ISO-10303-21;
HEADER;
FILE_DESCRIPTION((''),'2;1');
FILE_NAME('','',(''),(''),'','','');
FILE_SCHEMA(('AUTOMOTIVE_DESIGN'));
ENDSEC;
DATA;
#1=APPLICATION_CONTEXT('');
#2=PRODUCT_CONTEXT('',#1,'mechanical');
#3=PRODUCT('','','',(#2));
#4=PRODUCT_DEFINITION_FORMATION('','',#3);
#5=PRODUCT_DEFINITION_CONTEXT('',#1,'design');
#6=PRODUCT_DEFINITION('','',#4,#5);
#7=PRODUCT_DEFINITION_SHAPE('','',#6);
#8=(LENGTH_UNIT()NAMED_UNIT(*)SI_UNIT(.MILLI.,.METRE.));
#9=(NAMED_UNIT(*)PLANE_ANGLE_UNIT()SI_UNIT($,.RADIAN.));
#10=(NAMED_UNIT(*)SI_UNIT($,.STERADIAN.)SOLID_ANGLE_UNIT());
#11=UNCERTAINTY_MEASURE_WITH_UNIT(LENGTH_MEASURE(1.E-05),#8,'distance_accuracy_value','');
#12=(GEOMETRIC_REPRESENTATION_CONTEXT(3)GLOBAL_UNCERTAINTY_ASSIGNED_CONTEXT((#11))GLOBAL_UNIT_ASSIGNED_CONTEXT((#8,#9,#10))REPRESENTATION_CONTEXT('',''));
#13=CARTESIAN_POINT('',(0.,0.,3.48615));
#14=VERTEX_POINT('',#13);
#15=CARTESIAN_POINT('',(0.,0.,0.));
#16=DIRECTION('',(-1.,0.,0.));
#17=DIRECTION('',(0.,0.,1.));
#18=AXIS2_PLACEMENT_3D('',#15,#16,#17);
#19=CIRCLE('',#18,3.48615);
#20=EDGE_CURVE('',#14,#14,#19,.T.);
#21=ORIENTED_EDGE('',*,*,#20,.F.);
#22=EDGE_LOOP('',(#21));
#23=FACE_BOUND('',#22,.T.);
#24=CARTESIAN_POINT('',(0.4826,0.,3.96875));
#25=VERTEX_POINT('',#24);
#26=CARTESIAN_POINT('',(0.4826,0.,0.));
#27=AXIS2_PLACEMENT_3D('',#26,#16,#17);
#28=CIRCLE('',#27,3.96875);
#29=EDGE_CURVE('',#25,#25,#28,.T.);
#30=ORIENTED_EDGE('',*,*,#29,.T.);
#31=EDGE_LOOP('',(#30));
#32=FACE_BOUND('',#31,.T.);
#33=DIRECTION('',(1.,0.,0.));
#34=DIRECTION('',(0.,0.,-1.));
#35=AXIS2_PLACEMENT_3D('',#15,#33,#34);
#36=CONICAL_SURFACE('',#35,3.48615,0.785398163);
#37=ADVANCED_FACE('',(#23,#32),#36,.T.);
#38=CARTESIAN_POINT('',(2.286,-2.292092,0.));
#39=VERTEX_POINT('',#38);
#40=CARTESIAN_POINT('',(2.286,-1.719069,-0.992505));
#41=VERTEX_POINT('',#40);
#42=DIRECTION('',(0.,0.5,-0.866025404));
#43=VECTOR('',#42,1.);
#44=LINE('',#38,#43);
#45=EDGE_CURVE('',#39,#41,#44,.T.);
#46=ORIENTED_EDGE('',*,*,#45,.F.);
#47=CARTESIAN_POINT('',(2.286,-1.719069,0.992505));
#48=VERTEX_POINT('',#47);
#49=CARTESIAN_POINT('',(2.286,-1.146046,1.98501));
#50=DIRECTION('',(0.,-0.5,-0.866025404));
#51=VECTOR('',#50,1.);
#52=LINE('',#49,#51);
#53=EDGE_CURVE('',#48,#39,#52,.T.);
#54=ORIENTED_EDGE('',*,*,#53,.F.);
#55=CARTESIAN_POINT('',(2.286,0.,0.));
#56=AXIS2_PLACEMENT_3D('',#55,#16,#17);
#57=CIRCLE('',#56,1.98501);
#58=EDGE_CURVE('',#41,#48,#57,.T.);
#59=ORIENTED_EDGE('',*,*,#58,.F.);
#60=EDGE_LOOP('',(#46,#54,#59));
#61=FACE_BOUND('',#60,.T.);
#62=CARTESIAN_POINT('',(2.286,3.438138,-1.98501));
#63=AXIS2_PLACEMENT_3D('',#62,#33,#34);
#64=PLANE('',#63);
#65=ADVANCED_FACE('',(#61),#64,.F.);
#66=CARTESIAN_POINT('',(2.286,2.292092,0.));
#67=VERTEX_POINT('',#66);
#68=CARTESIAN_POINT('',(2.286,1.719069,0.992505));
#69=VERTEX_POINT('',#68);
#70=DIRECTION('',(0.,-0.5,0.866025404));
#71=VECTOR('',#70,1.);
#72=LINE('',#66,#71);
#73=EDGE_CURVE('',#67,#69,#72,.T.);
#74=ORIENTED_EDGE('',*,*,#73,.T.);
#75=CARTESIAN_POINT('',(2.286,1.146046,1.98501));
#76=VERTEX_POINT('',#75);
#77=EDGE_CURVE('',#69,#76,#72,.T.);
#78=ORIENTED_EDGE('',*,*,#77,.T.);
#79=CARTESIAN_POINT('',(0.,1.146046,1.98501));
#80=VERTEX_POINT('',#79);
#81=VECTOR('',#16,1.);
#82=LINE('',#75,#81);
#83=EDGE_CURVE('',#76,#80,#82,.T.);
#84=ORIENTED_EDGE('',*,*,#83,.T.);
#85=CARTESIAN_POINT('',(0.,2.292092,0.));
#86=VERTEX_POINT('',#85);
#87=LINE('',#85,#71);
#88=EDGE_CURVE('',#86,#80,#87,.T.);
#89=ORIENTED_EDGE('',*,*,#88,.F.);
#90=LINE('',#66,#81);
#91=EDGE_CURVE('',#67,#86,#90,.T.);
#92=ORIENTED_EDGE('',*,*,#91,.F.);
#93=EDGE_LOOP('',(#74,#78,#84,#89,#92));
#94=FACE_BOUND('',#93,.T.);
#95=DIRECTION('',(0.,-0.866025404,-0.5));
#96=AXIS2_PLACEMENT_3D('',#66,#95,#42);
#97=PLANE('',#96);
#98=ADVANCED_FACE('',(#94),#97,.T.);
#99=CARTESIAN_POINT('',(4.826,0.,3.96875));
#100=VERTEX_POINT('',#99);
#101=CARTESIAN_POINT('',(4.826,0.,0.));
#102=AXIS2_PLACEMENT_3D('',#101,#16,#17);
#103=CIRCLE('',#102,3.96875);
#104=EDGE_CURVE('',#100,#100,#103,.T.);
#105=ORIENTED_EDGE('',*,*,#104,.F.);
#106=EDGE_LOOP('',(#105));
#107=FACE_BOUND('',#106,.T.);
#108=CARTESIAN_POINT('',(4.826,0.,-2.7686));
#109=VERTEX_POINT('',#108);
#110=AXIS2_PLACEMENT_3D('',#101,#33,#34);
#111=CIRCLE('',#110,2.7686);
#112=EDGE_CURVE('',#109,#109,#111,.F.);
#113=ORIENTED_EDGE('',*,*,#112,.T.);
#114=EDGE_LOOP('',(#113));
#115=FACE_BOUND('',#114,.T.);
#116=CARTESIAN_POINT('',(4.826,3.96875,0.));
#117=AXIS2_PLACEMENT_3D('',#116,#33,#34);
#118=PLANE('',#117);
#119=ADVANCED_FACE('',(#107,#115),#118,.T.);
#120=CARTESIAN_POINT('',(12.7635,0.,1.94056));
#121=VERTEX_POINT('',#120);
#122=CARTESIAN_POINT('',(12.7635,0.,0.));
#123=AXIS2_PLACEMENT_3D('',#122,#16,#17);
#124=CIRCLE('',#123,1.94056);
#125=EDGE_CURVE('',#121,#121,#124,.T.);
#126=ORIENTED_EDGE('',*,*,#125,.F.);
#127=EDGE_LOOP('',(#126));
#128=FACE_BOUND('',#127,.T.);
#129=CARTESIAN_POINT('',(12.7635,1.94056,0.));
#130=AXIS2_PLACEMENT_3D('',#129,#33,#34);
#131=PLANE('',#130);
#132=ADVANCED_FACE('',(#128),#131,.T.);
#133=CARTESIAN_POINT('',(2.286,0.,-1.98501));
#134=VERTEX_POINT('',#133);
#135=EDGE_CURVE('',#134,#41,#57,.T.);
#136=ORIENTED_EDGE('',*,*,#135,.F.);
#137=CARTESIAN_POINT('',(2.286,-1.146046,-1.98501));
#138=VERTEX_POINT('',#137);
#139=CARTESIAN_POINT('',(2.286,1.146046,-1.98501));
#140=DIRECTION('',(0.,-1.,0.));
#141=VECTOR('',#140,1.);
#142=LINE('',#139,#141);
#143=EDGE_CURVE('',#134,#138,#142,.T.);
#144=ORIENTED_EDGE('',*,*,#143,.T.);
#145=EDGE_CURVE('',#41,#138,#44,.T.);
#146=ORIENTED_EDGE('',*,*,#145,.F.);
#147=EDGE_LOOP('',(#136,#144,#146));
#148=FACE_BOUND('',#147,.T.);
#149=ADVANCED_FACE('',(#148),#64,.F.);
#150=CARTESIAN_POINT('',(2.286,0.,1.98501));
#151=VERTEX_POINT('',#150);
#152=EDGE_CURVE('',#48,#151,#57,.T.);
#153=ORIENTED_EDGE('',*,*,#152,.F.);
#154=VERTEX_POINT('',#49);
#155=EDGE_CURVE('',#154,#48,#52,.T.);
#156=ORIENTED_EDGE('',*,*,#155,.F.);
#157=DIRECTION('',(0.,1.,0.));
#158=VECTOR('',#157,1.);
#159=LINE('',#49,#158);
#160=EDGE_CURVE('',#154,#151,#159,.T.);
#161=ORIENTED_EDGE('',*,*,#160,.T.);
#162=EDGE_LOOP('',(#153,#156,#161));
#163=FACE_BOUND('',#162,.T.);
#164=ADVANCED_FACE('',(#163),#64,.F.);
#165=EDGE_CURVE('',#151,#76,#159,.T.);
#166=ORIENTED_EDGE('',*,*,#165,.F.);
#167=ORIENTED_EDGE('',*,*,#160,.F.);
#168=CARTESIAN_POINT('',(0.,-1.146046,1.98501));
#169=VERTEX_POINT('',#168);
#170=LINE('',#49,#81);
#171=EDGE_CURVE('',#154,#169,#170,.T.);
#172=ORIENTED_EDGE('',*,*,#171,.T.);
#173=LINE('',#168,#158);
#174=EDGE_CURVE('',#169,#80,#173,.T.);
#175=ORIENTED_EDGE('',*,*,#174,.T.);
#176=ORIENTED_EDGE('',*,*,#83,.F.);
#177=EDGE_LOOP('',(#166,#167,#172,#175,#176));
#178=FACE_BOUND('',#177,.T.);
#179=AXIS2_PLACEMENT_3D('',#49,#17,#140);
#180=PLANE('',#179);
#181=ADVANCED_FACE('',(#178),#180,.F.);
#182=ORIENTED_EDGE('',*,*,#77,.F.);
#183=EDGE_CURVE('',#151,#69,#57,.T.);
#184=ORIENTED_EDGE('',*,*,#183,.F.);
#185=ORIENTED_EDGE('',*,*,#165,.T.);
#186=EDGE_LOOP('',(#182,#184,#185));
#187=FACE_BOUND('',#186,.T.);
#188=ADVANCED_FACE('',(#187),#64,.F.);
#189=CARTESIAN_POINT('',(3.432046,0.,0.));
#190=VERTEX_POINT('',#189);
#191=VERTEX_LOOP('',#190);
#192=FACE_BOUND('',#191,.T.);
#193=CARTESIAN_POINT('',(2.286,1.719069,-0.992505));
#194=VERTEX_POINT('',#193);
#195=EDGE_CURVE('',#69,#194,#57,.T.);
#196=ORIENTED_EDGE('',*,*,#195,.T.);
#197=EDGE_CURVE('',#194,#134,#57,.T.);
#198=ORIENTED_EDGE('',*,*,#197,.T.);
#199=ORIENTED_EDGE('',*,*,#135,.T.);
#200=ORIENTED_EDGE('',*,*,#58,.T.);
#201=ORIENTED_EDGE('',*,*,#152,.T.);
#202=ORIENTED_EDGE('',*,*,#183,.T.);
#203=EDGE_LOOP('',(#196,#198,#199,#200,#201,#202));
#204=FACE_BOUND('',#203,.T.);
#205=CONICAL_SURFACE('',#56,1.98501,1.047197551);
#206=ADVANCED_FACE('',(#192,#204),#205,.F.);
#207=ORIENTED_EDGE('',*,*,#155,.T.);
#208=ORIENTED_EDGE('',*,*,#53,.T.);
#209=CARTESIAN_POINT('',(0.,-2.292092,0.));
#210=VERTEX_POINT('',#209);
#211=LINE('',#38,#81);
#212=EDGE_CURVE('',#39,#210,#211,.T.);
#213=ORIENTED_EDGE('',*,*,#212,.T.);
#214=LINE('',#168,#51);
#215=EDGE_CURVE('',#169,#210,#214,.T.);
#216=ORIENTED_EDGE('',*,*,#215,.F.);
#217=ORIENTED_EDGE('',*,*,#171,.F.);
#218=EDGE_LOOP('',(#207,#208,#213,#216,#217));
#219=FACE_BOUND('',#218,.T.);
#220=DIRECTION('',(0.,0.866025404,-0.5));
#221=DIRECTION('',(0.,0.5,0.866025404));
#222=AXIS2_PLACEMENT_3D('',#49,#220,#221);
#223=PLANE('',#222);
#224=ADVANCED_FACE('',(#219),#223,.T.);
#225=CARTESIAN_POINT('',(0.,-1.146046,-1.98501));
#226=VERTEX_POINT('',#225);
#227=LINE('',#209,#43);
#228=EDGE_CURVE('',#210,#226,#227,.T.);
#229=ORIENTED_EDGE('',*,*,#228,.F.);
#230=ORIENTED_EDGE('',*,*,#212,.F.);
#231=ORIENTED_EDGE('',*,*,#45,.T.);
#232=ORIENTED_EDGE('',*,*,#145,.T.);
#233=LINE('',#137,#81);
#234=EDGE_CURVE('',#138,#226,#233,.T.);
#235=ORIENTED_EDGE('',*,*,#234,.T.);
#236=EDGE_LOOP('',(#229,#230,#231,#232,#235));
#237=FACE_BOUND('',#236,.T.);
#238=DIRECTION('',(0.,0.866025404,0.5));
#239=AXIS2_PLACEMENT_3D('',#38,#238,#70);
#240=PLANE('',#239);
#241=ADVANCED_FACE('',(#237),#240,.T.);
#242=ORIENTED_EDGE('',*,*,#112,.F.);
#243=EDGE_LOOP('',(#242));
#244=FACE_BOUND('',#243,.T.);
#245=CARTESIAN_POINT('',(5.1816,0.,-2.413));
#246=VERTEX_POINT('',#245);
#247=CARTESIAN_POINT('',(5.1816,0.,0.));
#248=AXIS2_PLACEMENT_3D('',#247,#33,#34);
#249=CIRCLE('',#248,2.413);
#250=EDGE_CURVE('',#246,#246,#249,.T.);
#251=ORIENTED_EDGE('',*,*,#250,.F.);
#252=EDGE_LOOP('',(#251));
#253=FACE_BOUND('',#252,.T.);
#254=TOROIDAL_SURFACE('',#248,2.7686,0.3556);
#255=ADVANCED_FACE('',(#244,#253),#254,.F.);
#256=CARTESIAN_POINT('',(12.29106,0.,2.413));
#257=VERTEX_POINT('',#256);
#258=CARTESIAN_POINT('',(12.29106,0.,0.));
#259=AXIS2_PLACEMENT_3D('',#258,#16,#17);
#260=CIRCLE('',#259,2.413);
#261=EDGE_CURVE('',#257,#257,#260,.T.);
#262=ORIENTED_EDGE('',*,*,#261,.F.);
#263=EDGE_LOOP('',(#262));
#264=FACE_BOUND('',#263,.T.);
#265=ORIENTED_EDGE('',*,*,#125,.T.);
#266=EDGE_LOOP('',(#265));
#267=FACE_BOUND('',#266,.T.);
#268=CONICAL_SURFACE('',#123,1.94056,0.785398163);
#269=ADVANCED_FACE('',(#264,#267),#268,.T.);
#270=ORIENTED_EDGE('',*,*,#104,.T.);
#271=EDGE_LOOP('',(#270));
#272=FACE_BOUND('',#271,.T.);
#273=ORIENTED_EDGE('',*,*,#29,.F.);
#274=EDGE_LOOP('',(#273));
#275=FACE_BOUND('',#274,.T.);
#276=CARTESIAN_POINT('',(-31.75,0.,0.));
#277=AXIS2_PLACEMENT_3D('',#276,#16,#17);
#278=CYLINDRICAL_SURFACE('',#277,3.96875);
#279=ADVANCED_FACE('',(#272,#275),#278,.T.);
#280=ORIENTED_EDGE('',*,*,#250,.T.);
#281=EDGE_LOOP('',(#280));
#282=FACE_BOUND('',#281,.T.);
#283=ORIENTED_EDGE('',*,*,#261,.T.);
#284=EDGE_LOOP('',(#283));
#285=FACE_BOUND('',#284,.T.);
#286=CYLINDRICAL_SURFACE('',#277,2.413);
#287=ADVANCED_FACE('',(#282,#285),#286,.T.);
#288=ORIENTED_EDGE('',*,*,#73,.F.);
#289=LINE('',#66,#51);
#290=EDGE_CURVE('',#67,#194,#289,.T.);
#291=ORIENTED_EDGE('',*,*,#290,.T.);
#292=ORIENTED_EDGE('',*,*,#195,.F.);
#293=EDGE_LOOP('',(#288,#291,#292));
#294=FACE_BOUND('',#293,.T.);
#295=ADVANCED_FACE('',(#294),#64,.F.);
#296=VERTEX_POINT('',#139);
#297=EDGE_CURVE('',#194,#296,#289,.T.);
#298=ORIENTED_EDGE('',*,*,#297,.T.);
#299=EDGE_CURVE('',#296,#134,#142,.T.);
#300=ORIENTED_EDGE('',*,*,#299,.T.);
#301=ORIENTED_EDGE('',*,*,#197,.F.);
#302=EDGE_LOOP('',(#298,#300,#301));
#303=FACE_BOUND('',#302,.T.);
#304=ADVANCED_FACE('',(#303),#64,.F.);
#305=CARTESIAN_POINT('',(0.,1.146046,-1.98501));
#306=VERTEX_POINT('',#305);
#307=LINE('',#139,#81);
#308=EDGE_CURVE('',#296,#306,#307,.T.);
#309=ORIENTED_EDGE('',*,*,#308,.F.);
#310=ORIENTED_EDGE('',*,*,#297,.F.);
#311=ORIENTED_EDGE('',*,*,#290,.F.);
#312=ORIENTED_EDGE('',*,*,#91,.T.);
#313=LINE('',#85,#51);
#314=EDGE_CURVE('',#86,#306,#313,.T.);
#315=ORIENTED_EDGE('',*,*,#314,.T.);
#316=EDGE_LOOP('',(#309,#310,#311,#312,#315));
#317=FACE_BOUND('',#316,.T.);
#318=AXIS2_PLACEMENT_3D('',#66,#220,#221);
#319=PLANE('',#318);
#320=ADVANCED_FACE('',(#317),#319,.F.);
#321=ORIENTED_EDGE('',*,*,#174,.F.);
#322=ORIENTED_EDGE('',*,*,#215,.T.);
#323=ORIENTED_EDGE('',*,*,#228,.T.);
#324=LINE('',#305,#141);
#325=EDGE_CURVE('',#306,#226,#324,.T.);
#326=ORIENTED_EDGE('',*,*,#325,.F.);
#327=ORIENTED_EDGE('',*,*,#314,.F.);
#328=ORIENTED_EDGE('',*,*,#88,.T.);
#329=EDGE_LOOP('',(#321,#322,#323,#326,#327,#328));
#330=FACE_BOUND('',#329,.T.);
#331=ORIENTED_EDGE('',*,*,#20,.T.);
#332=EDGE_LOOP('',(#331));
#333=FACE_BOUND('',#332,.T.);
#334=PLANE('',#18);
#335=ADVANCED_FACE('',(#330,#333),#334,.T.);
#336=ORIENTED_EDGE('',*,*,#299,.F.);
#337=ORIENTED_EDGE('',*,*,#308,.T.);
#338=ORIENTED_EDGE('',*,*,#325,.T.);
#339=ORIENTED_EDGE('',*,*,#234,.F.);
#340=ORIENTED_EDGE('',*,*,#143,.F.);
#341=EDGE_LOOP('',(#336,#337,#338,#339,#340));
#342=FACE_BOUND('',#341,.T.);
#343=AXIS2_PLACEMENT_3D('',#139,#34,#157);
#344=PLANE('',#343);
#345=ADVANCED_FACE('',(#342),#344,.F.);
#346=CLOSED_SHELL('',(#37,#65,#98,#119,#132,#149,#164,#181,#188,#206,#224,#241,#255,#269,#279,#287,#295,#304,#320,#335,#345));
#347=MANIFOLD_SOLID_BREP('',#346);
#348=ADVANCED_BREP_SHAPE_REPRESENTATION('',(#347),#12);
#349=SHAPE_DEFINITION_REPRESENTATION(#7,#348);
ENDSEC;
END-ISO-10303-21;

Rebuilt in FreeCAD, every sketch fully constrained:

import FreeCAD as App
import Part
import Sketcher
Q = App.Units.Quantity


def edges_at(feature, points):
    """Names of the edges that pass closest to the given points."""
    edges = feature.Shape.Edges
    near = lambda p: min(range(len(edges)), key=lambda i: edges[i].distToShape(Part.Vertex(*p))[0])
    return sorted({f"Edge{near(p) + 1}" for p in points})

doc = App.newDocument("Part")
body = doc.addObject("PartDesign::Body", "Body")

sketch1 = body.newObject("Sketcher::SketchObject", "Sketch")
sketch1.AttachmentSupport = (doc.getObject("XY_Plane"), [""])
sketch1.MapMode = "FlatFace"
sketch1.addGeometry(Part.LineSegment(App.Vector(0, 3.5, 0), App.Vector(0, 0, 0)), False)
sketch1.addGeometry(Part.LineSegment(App.Vector(0, 0, 0), App.Vector(12.8, 0, 0)), False)
sketch1.addGeometry(Part.LineSegment(App.Vector(12.8, 0, 0), App.Vector(12.8, 1.9, 0)), False)
sketch1.addGeometry(Part.LineSegment(App.Vector(12.8, 1.9, 0), App.Vector(12.3, 2.4, 0)), False)
sketch1.addGeometry(Part.LineSegment(App.Vector(12.3, 2.4, 0), App.Vector(4.8, 2.4, 0)), False)
sketch1.addGeometry(Part.LineSegment(App.Vector(4.8, 2.4, 0), App.Vector(4.8, 4, 0)), False)
sketch1.addGeometry(Part.LineSegment(App.Vector(4.8, 4, 0), App.Vector(0.5, 4, 0)), False)
sketch1.addGeometry(Part.LineSegment(App.Vector(0.5, 4, 0), App.Vector(0, 3.5, 0)), False)
sketch1.addConstraint(Sketcher.Constraint("Coincident", 0, 2, 1, 1))
sketch1.addConstraint(Sketcher.Constraint("Coincident", 1, 2, 2, 1))
sketch1.addConstraint(Sketcher.Constraint("Coincident", 2, 2, 3, 1))
sketch1.addConstraint(Sketcher.Constraint("Coincident", 3, 2, 4, 1))
sketch1.addConstraint(Sketcher.Constraint("Coincident", 4, 2, 5, 1))
sketch1.addConstraint(Sketcher.Constraint("Coincident", 5, 2, 6, 1))
sketch1.addConstraint(Sketcher.Constraint("Coincident", 6, 2, 7, 1))
sketch1.addConstraint(Sketcher.Constraint("Coincident", 7, 2, 0, 1))
sketch1.addConstraint(Sketcher.Constraint("Vertical", 0))
sketch1.addConstraint(Sketcher.Constraint("Horizontal", 1))
sketch1.addConstraint(Sketcher.Constraint("Vertical", 2))
sketch1.addConstraint(Sketcher.Constraint("Horizontal", 4))
sketch1.addConstraint(Sketcher.Constraint("Vertical", 5))
sketch1.addConstraint(Sketcher.Constraint("Horizontal", 6))
sketch1.addConstraint(Sketcher.Constraint("Coincident", 0, 2, -1, 1))
sketch1.addConstraint(Sketcher.Constraint("Perpendicular", 3, 7))
sketch1.addConstraint(Sketcher.Constraint("Angle", 3, Q("135 deg")))
sketch1.addConstraint(Sketcher.Constraint("DistanceX", 6, 2, 6, 1, Q("0.171 in")))
sketch1.addConstraint(Sketcher.Constraint("DistanceX", -1, 1, 4, 2, Q("0.19 in")))
sketch1.addConstraint(Sketcher.Constraint("DistanceX", 1, 1, 1, 2, Q("0.5025 in")))
sketch1.addConstraint(Sketcher.Constraint("DistanceX", 4, 2, 4, 1, Q("0.2939 in")))
sketch1.addConstraint(Sketcher.Constraint("DistanceY", 2, 1, 2, 2, Q("0.0764 in")))
sketch1.addConstraint(Sketcher.Constraint("DistanceY", -1, 1, 5, 2, Q("0.15625 in")))
revolution = body.newObject("PartDesign::Revolution", "Revolution")
revolution.Profile = sketch1
revolution.ReferenceAxis = (sketch1, ["H_Axis"])
revolution.Angle = 360
doc.recompute()

fillet = body.newObject("PartDesign::Fillet", "Fillet")
fillet.Base = (revolution, edges_at(revolution, [(4.826, -2.413, 0)]))
fillet.Radius = Q("0.014 in")

sketch2 = body.newObject("Sketcher::SketchObject", "Sketch001")
sketch2.AttachmentSupport = (doc.getObject("XY_Plane"), [""])
sketch2.MapMode = "FlatFace"
sketch2.addGeometry(Part.LineSegment(App.Vector(2.3, 2, 0), App.Vector(0, 2, 0)), False)
sketch2.addGeometry(Part.LineSegment(App.Vector(0, 2, 0), App.Vector(0, 0, 0)), False)
sketch2.addGeometry(Part.LineSegment(App.Vector(0, 0, 0), App.Vector(3.4, 0, 0)), False)
sketch2.addGeometry(Part.LineSegment(App.Vector(3.4, 0, 0), App.Vector(2.3, 2, 0)), False)
sketch2.addConstraint(Sketcher.Constraint("Coincident", 0, 2, 1, 1))
sketch2.addConstraint(Sketcher.Constraint("Coincident", 1, 2, 2, 1))
sketch2.addConstraint(Sketcher.Constraint("Coincident", 2, 2, 3, 1))
sketch2.addConstraint(Sketcher.Constraint("Coincident", 3, 2, 0, 1))
sketch2.addConstraint(Sketcher.Constraint("Horizontal", 0))
sketch2.addConstraint(Sketcher.Constraint("Vertical", 1))
sketch2.addConstraint(Sketcher.Constraint("Horizontal", 2))
sketch2.addConstraint(Sketcher.Constraint("Coincident", 1, 2, -1, 1))
sketch2.addConstraint(Sketcher.Constraint("Angle", 3, Q("120 deg")))
sketch2.addConstraint(Sketcher.Constraint("DistanceX", 0, 2, 0, 1, Q("0.09 in")))
sketch2.addConstraint(Sketcher.Constraint("DistanceY", 1, 2, 1, 1, 1.98501))
groove = body.newObject("PartDesign::Groove", "Groove")
groove.Profile = sketch2
groove.ReferenceAxis = (sketch2, ["H_Axis"])
groove.Angle = 360

sketch3 = body.newObject("Sketcher::SketchObject", "Sketch002")
sketch3.AttachmentSupport = (doc.getObject("YZ_Plane"), [""])
sketch3.MapMode = "FlatFace"
sketch3.addGeometry(Part.LineSegment(App.Vector(2.3, 0, 0), App.Vector(1.1, -2, 0)), False)
sketch3.addGeometry(Part.LineSegment(App.Vector(1.1, -2, 0), App.Vector(-1.1, -2, 0)), False)
sketch3.addGeometry(Part.LineSegment(App.Vector(-1.1, -2, 0), App.Vector(-2.3, 0, 0)), False)
sketch3.addGeometry(Part.LineSegment(App.Vector(-2.3, 0, 0), App.Vector(-1.1, 2, 0)), False)
sketch3.addGeometry(Part.LineSegment(App.Vector(-1.1, 2, 0), App.Vector(1.1, 2, 0)), False)
sketch3.addGeometry(Part.LineSegment(App.Vector(1.1, 2, 0), App.Vector(2.3, 0, 0)), False)
sketch3.addConstraint(Sketcher.Constraint("Coincident", 0, 2, 1, 1))
sketch3.addConstraint(Sketcher.Constraint("Coincident", 1, 2, 2, 1))
sketch3.addConstraint(Sketcher.Constraint("Coincident", 2, 2, 3, 1))
sketch3.addConstraint(Sketcher.Constraint("Coincident", 3, 2, 4, 1))
sketch3.addConstraint(Sketcher.Constraint("Coincident", 4, 2, 5, 1))
sketch3.addConstraint(Sketcher.Constraint("Coincident", 5, 2, 0, 1))
sketch3.addConstraint(Sketcher.Constraint("Horizontal", 1))
sketch3.addConstraint(Sketcher.Constraint("Horizontal", 4))
sketch3.addConstraint(Sketcher.Constraint("Symmetric", 0, 2, 3, 2, -1, 1))
sketch3.addConstraint(Sketcher.Constraint("Symmetric", 2, 2, 5, 2, -1, 1))
sketch3.addConstraint(Sketcher.Constraint("PointOnObject", 2, 2, -1))
sketch3.addConstraint(Sketcher.Constraint("Parallel", 2, 5))
sketch3.addConstraint(Sketcher.Constraint("Vertical", 1, 2, 3, 2))
sketch3.addConstraint(Sketcher.Constraint("Angle", 0, Q("-120 deg")))
sketch3.addConstraint(Sketcher.Constraint("DistanceY", 1, 2, 3, 2, Q("0.1563 in")))
sketch3.addConstraint(Sketcher.Constraint("DistanceX", 1, 2, 1, 1, 2.292092))
pocket1 = body.newObject("PartDesign::Pocket", "Pocket")
pocket1.Profile = sketch3
pocket1.Length = Q("0.09 in")
pocket1.Reversed = True

doc.recompute()
